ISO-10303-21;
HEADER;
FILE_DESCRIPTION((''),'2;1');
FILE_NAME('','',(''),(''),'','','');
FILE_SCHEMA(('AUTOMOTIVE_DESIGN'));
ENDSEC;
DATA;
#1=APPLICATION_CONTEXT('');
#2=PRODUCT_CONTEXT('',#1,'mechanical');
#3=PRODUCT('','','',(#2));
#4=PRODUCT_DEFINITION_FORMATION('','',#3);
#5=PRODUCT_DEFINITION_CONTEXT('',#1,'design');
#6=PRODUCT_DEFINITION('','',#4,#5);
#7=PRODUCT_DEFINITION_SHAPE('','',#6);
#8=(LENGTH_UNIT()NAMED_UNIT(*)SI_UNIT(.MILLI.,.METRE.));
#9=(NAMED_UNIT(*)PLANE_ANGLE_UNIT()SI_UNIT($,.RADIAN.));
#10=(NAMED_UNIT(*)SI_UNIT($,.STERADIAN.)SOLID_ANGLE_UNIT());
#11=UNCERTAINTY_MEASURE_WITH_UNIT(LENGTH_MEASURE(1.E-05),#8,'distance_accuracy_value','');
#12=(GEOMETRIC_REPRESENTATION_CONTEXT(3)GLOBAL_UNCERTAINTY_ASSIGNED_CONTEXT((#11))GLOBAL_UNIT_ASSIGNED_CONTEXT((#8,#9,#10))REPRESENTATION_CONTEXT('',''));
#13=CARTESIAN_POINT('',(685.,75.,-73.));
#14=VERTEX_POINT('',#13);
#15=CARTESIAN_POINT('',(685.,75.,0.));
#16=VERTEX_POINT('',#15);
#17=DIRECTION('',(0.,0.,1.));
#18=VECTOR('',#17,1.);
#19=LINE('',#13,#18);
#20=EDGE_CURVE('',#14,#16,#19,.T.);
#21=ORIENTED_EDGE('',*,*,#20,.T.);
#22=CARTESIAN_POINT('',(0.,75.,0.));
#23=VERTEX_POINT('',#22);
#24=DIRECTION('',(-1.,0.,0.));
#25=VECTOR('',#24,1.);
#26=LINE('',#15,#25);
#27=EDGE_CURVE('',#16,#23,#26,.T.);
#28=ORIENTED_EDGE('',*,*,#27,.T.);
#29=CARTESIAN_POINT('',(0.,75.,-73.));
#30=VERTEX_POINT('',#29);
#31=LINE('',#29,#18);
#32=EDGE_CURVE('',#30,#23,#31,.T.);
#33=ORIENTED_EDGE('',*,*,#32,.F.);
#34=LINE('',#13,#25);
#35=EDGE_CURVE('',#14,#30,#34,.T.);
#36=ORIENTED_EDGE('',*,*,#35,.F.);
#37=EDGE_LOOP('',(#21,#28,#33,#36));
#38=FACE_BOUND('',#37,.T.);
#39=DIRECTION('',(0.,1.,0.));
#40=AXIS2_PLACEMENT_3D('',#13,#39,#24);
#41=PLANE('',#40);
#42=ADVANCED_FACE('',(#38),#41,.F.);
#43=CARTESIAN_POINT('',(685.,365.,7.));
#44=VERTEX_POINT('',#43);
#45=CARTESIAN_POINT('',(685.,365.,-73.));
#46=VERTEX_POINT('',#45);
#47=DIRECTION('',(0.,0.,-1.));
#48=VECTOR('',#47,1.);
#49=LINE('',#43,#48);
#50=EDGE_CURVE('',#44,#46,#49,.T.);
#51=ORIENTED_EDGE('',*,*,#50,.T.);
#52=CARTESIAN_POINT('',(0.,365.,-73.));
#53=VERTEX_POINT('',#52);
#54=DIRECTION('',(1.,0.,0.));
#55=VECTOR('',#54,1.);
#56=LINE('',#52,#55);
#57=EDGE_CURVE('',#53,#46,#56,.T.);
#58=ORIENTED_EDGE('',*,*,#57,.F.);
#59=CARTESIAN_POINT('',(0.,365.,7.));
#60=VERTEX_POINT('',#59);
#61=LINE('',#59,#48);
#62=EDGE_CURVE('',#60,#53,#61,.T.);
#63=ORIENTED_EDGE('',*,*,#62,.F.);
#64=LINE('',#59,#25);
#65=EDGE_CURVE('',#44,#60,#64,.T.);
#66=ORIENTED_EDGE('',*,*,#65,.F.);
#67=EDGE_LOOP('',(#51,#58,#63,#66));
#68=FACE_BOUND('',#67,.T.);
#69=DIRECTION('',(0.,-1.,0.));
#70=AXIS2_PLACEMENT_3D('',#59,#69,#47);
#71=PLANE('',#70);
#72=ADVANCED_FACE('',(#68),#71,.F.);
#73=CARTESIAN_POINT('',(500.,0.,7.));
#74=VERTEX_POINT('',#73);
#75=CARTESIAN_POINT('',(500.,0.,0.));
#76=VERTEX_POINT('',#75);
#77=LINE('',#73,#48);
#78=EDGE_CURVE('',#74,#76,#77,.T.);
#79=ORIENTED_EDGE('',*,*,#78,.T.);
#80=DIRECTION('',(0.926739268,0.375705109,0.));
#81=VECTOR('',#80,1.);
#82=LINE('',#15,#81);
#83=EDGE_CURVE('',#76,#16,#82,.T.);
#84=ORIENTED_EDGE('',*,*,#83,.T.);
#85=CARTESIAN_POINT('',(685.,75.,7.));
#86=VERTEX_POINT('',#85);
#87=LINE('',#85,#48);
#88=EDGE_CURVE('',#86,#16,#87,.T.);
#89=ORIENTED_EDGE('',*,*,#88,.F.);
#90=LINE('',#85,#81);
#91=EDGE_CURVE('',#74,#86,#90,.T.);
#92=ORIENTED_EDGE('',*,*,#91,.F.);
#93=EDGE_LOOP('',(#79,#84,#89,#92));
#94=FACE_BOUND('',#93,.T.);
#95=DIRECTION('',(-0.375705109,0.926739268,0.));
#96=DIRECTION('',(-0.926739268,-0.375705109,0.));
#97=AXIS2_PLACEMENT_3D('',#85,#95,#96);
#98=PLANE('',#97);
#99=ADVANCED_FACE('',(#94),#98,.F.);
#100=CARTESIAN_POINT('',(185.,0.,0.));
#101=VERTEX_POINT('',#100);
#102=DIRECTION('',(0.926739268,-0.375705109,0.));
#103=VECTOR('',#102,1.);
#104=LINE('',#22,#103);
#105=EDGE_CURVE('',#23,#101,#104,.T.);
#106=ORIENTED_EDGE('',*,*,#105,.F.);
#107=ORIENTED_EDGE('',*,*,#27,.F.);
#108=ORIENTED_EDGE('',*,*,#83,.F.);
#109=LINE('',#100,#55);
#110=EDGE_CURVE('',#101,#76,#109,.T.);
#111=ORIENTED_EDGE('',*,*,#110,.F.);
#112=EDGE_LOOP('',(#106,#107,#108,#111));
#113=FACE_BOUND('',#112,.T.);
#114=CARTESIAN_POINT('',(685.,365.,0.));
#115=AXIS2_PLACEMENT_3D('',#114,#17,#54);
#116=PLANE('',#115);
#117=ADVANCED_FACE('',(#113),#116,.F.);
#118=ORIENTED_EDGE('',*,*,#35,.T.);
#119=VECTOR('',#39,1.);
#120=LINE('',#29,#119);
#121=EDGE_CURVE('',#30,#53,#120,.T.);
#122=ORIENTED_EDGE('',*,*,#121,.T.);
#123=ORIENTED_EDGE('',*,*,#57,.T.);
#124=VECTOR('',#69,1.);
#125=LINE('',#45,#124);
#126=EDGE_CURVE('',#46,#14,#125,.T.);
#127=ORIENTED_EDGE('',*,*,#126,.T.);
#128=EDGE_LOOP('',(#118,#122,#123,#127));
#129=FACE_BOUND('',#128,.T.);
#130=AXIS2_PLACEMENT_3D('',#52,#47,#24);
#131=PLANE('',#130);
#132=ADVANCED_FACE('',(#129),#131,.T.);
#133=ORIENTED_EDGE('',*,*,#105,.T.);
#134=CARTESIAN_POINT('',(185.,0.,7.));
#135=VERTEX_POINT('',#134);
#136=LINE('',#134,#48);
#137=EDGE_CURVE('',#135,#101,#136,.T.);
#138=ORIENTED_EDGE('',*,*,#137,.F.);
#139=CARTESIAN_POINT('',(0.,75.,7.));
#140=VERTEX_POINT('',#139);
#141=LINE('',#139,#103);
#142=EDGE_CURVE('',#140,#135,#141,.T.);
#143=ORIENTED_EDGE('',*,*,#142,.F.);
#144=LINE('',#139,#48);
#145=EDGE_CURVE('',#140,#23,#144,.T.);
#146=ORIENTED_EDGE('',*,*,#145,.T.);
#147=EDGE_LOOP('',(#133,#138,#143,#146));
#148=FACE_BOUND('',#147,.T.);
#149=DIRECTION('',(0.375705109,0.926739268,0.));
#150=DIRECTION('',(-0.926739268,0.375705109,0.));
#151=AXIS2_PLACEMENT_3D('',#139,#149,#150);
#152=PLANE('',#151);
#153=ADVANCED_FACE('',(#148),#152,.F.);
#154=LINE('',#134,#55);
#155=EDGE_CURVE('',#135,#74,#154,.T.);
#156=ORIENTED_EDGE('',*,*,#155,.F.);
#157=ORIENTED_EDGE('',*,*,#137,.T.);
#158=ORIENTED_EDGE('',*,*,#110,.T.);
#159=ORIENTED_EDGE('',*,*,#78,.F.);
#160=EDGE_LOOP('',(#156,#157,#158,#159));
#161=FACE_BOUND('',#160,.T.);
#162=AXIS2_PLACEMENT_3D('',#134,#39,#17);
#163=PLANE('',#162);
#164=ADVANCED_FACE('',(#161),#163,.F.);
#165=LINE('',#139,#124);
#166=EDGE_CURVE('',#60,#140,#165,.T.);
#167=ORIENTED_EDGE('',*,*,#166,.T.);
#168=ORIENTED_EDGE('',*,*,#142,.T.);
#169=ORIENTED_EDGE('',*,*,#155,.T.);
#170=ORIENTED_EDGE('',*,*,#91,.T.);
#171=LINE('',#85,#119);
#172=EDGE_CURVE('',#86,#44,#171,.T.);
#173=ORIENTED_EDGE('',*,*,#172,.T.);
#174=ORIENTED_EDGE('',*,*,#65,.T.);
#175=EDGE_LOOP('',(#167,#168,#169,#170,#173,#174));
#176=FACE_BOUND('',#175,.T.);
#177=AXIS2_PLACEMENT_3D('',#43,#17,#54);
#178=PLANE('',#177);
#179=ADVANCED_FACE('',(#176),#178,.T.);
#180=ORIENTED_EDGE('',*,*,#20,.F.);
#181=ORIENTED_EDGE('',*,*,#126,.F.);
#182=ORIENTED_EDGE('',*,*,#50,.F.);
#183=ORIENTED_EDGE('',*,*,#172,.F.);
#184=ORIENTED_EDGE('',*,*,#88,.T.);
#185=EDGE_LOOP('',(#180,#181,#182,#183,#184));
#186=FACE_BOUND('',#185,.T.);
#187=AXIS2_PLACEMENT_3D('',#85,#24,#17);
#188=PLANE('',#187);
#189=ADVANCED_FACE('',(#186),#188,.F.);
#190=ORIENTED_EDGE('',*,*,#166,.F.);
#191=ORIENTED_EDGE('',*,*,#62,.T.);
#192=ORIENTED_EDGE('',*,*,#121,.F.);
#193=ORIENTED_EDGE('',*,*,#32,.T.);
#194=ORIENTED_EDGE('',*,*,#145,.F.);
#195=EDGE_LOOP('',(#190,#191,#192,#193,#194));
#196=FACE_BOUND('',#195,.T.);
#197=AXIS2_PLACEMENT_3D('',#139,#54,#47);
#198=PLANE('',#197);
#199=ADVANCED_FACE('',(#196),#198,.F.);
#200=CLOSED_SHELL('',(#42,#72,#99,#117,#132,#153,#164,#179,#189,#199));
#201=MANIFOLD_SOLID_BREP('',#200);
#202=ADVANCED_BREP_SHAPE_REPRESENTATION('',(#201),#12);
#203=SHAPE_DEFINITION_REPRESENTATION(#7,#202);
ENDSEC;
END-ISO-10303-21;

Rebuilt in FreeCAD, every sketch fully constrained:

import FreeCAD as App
import Part
import Sketcher

doc = App.newDocument("Part")
body = doc.addObject("PartDesign::Body", "Body")

sketch1 = doc.addObject("Sketcher::SketchObject", "Sketch")
body.addObject(sketch1)
sketch1.AttachmentSupport = (doc.XY_Plane, [""])
sketch1.MapMode = "FlatFace"
sketch1.addGeometry([
    Part.LineSegment(App.Vector(0, 75, 0), App.Vector(185, 0, 0)),
    Part.LineSegment(App.Vector(185, 0, 0), App.Vector(500, 0, 0)),
    Part.LineSegment(App.Vector(500, 0, 0), App.Vector(685, 75, 0)),
    Part.LineSegment(App.Vector(685, 75, 0), App.Vector(685, 365, 0)),
    Part.LineSegment(App.Vector(685, 365, 0), App.Vector(0, 365, 0)),
    Part.LineSegment(App.Vector(0, 365, 0), App.Vector(0, 75, 0)),
], False)
sketch1.addConstraint([
    Sketcher.Constraint("Coincident", 0, 2, 1, 1),
    Sketcher.Constraint("Coincident", 1, 2, 2, 1),
    Sketcher.Constraint("Coincident", 2, 2, 3, 1),
    Sketcher.Constraint("Coincident", 3, 2, 4, 1),
    Sketcher.Constraint("Coincident", 4, 2, 5, 1),
    Sketcher.Constraint("Coincident", 5, 2, 0, 1),
    Sketcher.Constraint("Horizontal", 1),
    Sketcher.Constraint("Vertical", 3),
    Sketcher.Constraint("Horizontal", 4),
    Sketcher.Constraint("Vertical", 5),
    Sketcher.Constraint("PointOnObject", 0, 2, -1),
    Sketcher.Constraint("PointOnObject", 4, 2, -2),
    Sketcher.Constraint("Horizontal", 2, 2, 5, 2),
    Sketcher.Constraint("Equal", 0, 2),
    Sketcher.Constraint("DistanceX", 1, 1, 1, 2, 315.0),
    Sketcher.Constraint("DistanceX", 4, 2, 4, 1, 685.0),
    Sketcher.Constraint("DistanceY", 3, 1, 3, 2, 290.0),
    Sketcher.Constraint("DistanceY", -1, 1, 2, 2, 75.0),
])
pad1 = doc.addObject("PartDesign::Pad", "Pad")
body.addObject(pad1)
pad1.Profile = sketch1
pad1.Length = 7

sketch2 = doc.addObject("Sketcher::SketchObject", "Sketch001")
body.addObject(sketch2)
sketch2.AttachmentSupport = (doc.XY_Plane, [""])
sketch2.MapMode = "FlatFace"
sketch2.addGeometry([
    Part.LineSegment(App.Vector(685, 365, 0), App.Vector(685, 75, 0)),
    Part.LineSegment(App.Vector(685, 75, 0), App.Vector(0, 75, 0)),
    Part.LineSegment(App.Vector(0, 75, 0), App.Vector(0, 365, 0)),
    Part.LineSegment(App.Vector(0, 365, 0), App.Vector(685, 365, 0)),
], False)
sketch2.addConstraint([
    Sketcher.Constraint("Coincident", 0, 2, 1, 1),
    Sketcher.Constraint("Coincident", 1, 2, 2, 1),
    Sketcher.Constraint("Coincident", 2, 2, 3, 1),
    Sketcher.Constraint("Coincident", 3, 2, 0, 1),
    Sketcher.Constraint("Vertical", 0),
    Sketcher.Constraint("Horizontal", 1),
    Sketcher.Constraint("Vertical", 2),
    Sketcher.Constraint("Horizontal", 3),
    Sketcher.Constraint("PointOnObject", 1, 2, -2),
    Sketcher.Constraint("DistanceX", 1, 2, 1, 1, 685.0),
    Sketcher.Constraint("DistanceY", 0, 2, 0, 1, 290.0),
    Sketcher.Constraint("DistanceY", -1, 1, 0, 2, 75.0),
])
pad2 = doc.addObject("PartDesign::Pad", "Pad001")
body.addObject(pad2)
pad2.Profile = sketch2
pad2.Length = 73
pad2.Reversed = True

doc.recompute()
